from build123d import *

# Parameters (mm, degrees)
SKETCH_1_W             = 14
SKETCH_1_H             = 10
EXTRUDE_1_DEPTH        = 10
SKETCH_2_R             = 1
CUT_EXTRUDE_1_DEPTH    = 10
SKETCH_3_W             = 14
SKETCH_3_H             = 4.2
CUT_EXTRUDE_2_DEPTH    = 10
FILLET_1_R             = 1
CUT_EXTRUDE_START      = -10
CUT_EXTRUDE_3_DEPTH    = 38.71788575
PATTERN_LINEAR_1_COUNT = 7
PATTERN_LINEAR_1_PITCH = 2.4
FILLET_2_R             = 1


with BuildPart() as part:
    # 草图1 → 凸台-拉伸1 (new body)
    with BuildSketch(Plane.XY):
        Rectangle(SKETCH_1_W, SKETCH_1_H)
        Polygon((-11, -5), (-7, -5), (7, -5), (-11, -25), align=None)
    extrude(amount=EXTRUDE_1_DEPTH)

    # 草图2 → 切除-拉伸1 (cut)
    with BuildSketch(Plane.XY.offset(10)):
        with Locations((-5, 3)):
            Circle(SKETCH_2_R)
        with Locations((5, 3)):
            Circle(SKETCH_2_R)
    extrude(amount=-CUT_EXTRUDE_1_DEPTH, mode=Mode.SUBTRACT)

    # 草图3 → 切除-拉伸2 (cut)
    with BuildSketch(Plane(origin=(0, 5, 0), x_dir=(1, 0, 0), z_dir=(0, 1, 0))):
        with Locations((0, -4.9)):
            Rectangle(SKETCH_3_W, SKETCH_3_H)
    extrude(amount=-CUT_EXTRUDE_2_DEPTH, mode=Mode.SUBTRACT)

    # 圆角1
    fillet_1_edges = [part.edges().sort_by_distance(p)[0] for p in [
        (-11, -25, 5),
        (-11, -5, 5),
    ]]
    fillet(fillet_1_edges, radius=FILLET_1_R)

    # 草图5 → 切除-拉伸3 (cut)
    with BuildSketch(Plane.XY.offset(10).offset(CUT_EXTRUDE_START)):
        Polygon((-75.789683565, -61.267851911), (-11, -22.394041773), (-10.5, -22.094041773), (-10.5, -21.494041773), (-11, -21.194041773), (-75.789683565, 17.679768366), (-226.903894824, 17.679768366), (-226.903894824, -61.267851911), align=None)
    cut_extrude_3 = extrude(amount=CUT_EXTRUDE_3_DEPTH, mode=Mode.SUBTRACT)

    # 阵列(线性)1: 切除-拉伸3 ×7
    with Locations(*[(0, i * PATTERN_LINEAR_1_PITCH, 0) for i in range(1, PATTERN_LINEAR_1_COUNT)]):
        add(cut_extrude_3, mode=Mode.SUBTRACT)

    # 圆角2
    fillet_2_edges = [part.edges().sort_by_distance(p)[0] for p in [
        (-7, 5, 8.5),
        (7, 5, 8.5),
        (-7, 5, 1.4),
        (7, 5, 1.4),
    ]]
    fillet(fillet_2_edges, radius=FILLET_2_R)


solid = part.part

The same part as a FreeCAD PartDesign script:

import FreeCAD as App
import Part
import Sketcher


def edges_at(feature, points):
    """Names of the edges that pass closest to the given points."""
    edges = feature.Shape.Edges
    near = lambda p: min(range(len(edges)), key=lambda i: edges[i].distToShape(Part.Vertex(*p))[0])
    return sorted({f"Edge{near(p) + 1}" for p in points})

doc = App.newDocument("Part")
body = doc.addObject("PartDesign::Body", "Body")

# Sketch on XY plane
sketch1 = body.newObject("Sketcher::SketchObject", "Sketch")
sketch1.AttachmentSupport = (doc.getObject("XY_Plane"), [""])
sketch1.MapMode = "FlatFace"
sketch1.addGeometry([
    Part.LineSegment(App.Vector(-7, 5, 0), App.Vector(-7, -5, 0)),  # 0
    Part.LineSegment(App.Vector(-7, -5, 0), App.Vector(-11, -5, 0)),  # 1
    Part.LineSegment(App.Vector(-11, -5, 0), App.Vector(-11, -25, 0)),  # 2
    Part.LineSegment(App.Vector(-11, -25, 0), App.Vector(7, -5, 0)),  # 3
    Part.LineSegment(App.Vector(7, -5, 0), App.Vector(7, 5, 0)),  # 4
    Part.LineSegment(App.Vector(7, 5, 0), App.Vector(-7, 5, 0)),  # 5
], False)
sketch1.addConstraint([
    Sketcher.Constraint("Coincident", 0, 2, 1, 1),
    Sketcher.Constraint("Coincident", 1, 2, 2, 1),
    Sketcher.Constraint("Coincident", 2, 2, 3, 1),
    Sketcher.Constraint("Coincident", 3, 2, 4, 1),
    Sketcher.Constraint("Coincident", 4, 2, 5, 1),
    Sketcher.Constraint("Coincident", 5, 2, 0, 1),
    Sketcher.Constraint("Vertical", 0),
    Sketcher.Constraint("Horizontal", 1),
    Sketcher.Constraint("Vertical", 2),
    Sketcher.Constraint("Vertical", 4),
    Sketcher.Constraint("Horizontal", 5),
    Sketcher.Constraint("Symmetric", 0, 2, 4, 2, -1, 1),
    Sketcher.Constraint("Horizontal", 1, 2, 3, 2),
    Sketcher.Constraint("DistanceX", 1, 2, 1, 1, 4.0),
    Sketcher.Constraint("DistanceX", 5, 2, 5, 1, 14.0),
    Sketcher.Constraint("DistanceY", 0, 2, 0, 1, 10.0),
    Sketcher.Constraint("DistanceY", 2, 2, 2, 1, 20.0),
])
pad1 = body.newObject("PartDesign::Pad", "Pad")
pad1.Profile = sketch1
pad1.Length = 10

# Sketch on XY plane
sketch2 = body.newObject("Sketcher::SketchObject", "Sketch001")
sketch2.AttachmentSupport = (doc.getObject("XY_Plane"), [""])
sketch2.MapMode = "FlatFace"
sketch2.AttachmentOffset = App.Placement(App.Vector(0, 0, 10), App.Rotation())
sketch2.addGeometry([
    Part.Circle(App.Vector(-5, 3, 0), App.Vector(0, 0, 1), 1),
    Part.Circle(App.Vector(5, 3, 0), App.Vector(0, 0, 1), 1),
], False)
sketch2.addConstraint([
    Sketcher.Constraint("Equal", 0, 1),
    Sketcher.Constraint("Symmetric", 0, 3, 1, 3, -2),
    Sketcher.Constraint("Diameter", 0, 2.0),
    Sketcher.Constraint("DistanceX", 0, 3, -1, 1, 5.0),
    Sketcher.Constraint("DistanceY", -1, 1, 0, 3, 3.0),
])
pocket1 = body.newObject("PartDesign::Pocket", "Pocket")
pocket1.Profile = sketch2
pocket1.Length = 10

# Sketch on XZ plane
sketch3 = body.newObject("Sketcher::SketchObject", "Sketch002")
sketch3.AttachmentSupport = (doc.getObject("XZ_Plane"), [""])
sketch3.MapMode = "FlatFace"
sketch3.AttachmentOffset = App.Placement(App.Vector(0, 0, -5), App.Rotation())
sketch3.addGeometry([
    Part.LineSegment(App.Vector(-7, 2.8, 0), App.Vector(-7, 7, 0)),
    Part.LineSegment(App.Vector(-7, 7, 0), App.Vector(7, 7, 0)),
    Part.LineSegment(App.Vector(7, 7, 0), App.Vector(7, 2.8, 0)),
    Part.LineSegment(App.Vector(7, 2.8, 0), App.Vector(-7, 2.8, 0)),
], False)
sketch3.addConstraint([
    Sketcher.Constraint("Coincident", 0, 2, 1, 1),
    Sketcher.Constraint("Coincident", 1, 2, 2, 1),
    Sketcher.Constraint("Coincident", 2, 2, 3, 1),
    Sketcher.Constraint("Coincident", 3, 2, 0, 1),
    Sketcher.Constraint("Vertical", 0),
    Sketcher.Constraint("Horizontal", 1),
    Sketcher.Constraint("Vertical", 2),
    Sketcher.Constraint("Horizontal", 3),
    Sketcher.Constraint("DistanceX", 1, 1, 1, 2, 14.0),
    Sketcher.Constraint("DistanceY", 0, 1, 0, 2, 4.2),
    Sketcher.Constraint("DistanceX", 0, 2, -1, 1, 7.0),
    Sketcher.Constraint("DistanceY", -1, 1, 0, 2, 7.0),
])
pocket2 = body.newObject("PartDesign::Pocket", "Pocket001")
pocket2.Profile = sketch3
pocket2.Length = 10
pocket2.Reversed = True
doc.recompute()

fillet = body.newObject("PartDesign::Fillet", "Fillet")
fillet.Base = (pocket2, edges_at(pocket2, [(-11, -25, 5), (-11, -5, 5)]))
fillet.Radius = 1

# Sketch on XY plane
sketch4 = body.newObject("Sketcher::SketchObject", "Sketch003")
sketch4.AttachmentSupport = (doc.getObject("XY_Plane"), [""])
sketch4.MapMode = "FlatFace"
sketch4.addGeometry([
    Part.LineSegment(App.Vector(-75.789684, -61.267852, 0), App.Vector(-11, -22.394042, 0)),  # 0
    Part.LineSegment(App.Vector(-11, -22.394042, 0), App.Vector(-10.5, -22.094042, 0)),  # 1
    Part.LineSegment(App.Vector(-10.5, -22.094042, 0), App.Vector(-10.5, -21.494042, 0)),  # 2
    Part.LineSegment(App.Vector(-10.5, -21.494042, 0), App.Vector(-75.789684, 17.679768, 0)),  # 3
    Part.LineSegment(App.Vector(-75.789684, 17.679768, 0), App.Vector(-226.903895, 17.679768, 0)),  # 4
    Part.LineSegment(App.Vector(-226.903895, 17.679768, 0), App.Vector(-226.903895, -61.267852, 0)),  # 5
    Part.LineSegment(App.Vector(-226.903895, -61.267852, 0), App.Vector(-75.789684, -61.267852, 0)),  # 6
], False)
sketch4.addConstraint([
    Sketcher.Constraint("Coincident", 0, 2, 1, 1),
    Sketcher.Constraint("Coincident", 1, 2, 2, 1),
    Sketcher.Constraint("Coincident", 2, 2, 3, 1),
    Sketcher.Constraint("Coincident", 3, 2, 4, 1),
    Sketcher.Constraint("Coincident", 4, 2, 5, 1),
    Sketcher.Constraint("Coincident", 5, 2, 6, 1),
    Sketcher.Constraint("Coincident", 6, 2, 0, 1),
    Sketcher.Constraint("Vertical", 2),
    Sketcher.Constraint("Horizontal", 4),
    Sketcher.Constraint("Vertical", 5),
    Sketcher.Constraint("Horizontal", 6),
    Sketcher.Constraint("Parallel", 0, 1),
    Sketcher.Constraint("Vertical", 3, 2, 6, 2),
    Sketcher.Constraint("DistanceY", 2, 1, 2, 2, 0.6),
    Sketcher.Constraint("DistanceX", 0, 2, -1, 1, 11.0),
    Sketcher.Constraint("DistanceX", 1, 2, -1, 1, 10.5),
    Sketcher.Constraint("DistanceY", 0, 2, 1, 2, 0.3),
    Sketcher.Constraint("Distance", 3, 76.140201),
    Sketcher.Constraint("DistanceX", 4, 2, 4, 1, 151.114211),
    Sketcher.Constraint("DistanceY", 5, 2, 5, 1, 78.94762),
    Sketcher.Constraint("DistanceY", 0, 2, -1, 1, 22.394042),
])
pocket3 = body.newObject("PartDesign::Pocket", "Pocket002")
pocket3.Profile = sketch4
pocket3.Length = 38.717886
pocket3.Reversed = True
doc.recompute()

linearpattern = body.newObject("PartDesign::LinearPattern", "LinearPattern")
linearpattern.Originals = [pocket3]
linearpattern.Direction = (doc.getObject("Y_Axis"), [""])
linearpattern.Mode = "offset"
linearpattern.Offset = 2.4
linearpattern.Occurrences = 7
body.Tip = linearpattern
doc.recompute()

fillet2 = body.newObject("PartDesign::Fillet", "Fillet001")
fillet2.Base = (linearpattern, edges_at(linearpattern, [
    (-7, 5, 8.5),
    (7, 5, 8.5),
    (-7, 5, 1.4),
    (7, 5, 1.4),
]))
fillet2.Radius = 1

doc.recompute()
